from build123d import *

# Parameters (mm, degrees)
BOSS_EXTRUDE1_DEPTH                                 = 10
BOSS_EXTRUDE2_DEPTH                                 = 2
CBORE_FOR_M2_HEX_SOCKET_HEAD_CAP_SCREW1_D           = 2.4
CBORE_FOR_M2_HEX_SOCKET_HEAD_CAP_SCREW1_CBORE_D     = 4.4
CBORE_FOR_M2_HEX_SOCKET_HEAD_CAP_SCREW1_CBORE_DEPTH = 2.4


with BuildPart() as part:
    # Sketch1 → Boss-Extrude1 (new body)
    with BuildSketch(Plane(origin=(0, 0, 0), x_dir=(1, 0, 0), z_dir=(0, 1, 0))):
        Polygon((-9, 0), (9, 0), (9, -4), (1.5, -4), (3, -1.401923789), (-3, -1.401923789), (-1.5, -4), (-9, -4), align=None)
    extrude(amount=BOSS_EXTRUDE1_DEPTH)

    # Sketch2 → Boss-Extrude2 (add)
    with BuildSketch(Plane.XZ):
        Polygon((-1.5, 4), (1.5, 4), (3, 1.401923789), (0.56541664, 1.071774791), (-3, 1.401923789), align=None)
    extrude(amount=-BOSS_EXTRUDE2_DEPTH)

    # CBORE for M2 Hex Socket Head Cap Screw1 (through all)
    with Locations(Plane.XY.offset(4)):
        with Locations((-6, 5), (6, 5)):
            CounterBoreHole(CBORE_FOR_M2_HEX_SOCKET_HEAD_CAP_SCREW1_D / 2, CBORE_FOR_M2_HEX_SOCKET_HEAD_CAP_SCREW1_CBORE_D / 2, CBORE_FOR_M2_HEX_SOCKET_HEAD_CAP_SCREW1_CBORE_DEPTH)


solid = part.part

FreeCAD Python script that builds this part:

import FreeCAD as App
import Part
import Sketcher
Q = App.Units.Quantity


def add_polygon(sketch, points):
    """Adds a closed chain of lines whose ends are joined by coincident constraints."""
    first, n = sketch.GeometryCount, len(points)
    for a, b in zip(points, points[1:] + points[:1]):
        sketch.addGeometry(Part.LineSegment(App.Vector(*a, 0), App.Vector(*b, 0)), False)
    for i in range(n):
        sketch.addConstraint(Sketcher.Constraint("Coincident", first + i, 2, first + (i + 1) % n, 1))

doc = App.newDocument("Part")
body = doc.addObject("PartDesign::Body", "Body")

sketch1 = doc.addObject("Sketcher::SketchObject", "Sketch")
body.addObject(sketch1)
sketch1.AttachmentSupport = (doc.XZ_Plane, [""])
sketch1.MapMode = "FlatFace"
add_polygon(sketch1, [(9, 0), (-9, 0), (-9, 4), (-1.5, 4), (-3, 1.401924), (3, 1.401924), (1.5, 4), (9, 4)])
sketch1.addConstraint([
    Sketcher.Constraint("Horizontal", 0),
    Sketcher.Constraint("Vertical", 1),
    Sketcher.Constraint("Horizontal", 2),
    Sketcher.Constraint("Horizontal", 4),
    Sketcher.Constraint("Horizontal", 6),
    Sketcher.Constraint("Vertical", 7),
    Sketcher.Constraint("Symmetric", 0, 2, 7, 2, -1, 1),
    Sketcher.Constraint("Symmetric", 2, 2, 5, 2, -2),
    Sketcher.Constraint("Equal", 3, 5),
    Sketcher.Constraint("DistanceX", 0, 2, 0, 1, Q("18 mm")),
    Sketcher.Constraint("DistanceX", 4, 1, 4, 2, Q("6 mm")),
    Sketcher.Constraint("DistanceY", 1, 1, 1, 2, Q("4 mm")),
    Sketcher.Constraint("Angle", 3, Q("-120 deg")),
    Sketcher.Constraint("Distance", 3, Q("3 mm")),
])
pad1 = doc.addObject("PartDesign::Pad", "Pad")
body.addObject(pad1)
pad1.Profile = sketch1
pad1.Length = 10
pad1.Reversed = True

sketch2 = doc.addObject("Sketcher::SketchObject", "Sketch001")
body.addObject(sketch2)
sketch2.AttachmentSupport = (doc.XZ_Plane, [""])
sketch2.MapMode = "FlatFace"
add_polygon(sketch2, [(1.5, 4), (-1.5, 4), (-3, 1.401924), (0.565417, 1.071775), (3, 1.401924)])
sketch2.addConstraint([
    Sketcher.Constraint("Horizontal", 0),
    Sketcher.Constraint("Symmetric", 1, 2, 3, 2, -2),
    Sketcher.Constraint("Equal", 1, 4),
    Sketcher.Constraint("DistanceX", 0, 2, 0, 1, Q("3 mm")),
    Sketcher.Constraint("Angle", 1, Q("-120 deg")),
    Sketcher.Constraint("Distance", 1, Q("3 mm")),
    Sketcher.Constraint("DistanceY", -1, 1, 0, 2, Q("4 mm")),
    Sketcher.Constraint("Distance", 2, Q("3.58067 mm")),
    Sketcher.Constraint("DistanceY", 2, 2, 1, 2, Q("0.330149 mm")),
])
pad2 = doc.addObject("PartDesign::Pad", "Pad001")
body.addObject(pad2)
pad2.Profile = sketch2
pad2.Length = 2
pad2.Reversed = True

sketch3 = doc.addObject("Sketcher::SketchObject", "Sketch002")
body.addObject(sketch3)
sketch3.AttachmentSupport = (doc.XY_Plane, [""])
sketch3.MapMode = "FlatFace"
sketch3.AttachmentOffset = App.Placement(App.Vector(0, 0, 4), App.Rotation())
sketch3.addGeometry([
    Part.Circle(App.Vector(-6, 5, 0), App.Vector(0, 0, 1), 1.2),
    Part.Circle(App.Vector(6, 5, 0), App.Vector(0, 0, 1), 1.2),
], False)
sketch3.addConstraint([
    Sketcher.Constraint("Equal", 0, 1),
    Sketcher.Constraint("Symmetric", 0, 3, 1, 3, -2),
    Sketcher.Constraint("Diameter", 0, Q("2.4 mm")),
    Sketcher.Constraint("DistanceX", 0, 3, -1, 1, Q("6 mm")),
    Sketcher.Constraint("DistanceY", -1, 1, 0, 3, Q("5 mm")),
])
doc.recompute()
hole = doc.addObject("PartDesign::Hole", "Hole")
body.addObject(hole)
hole.Profile = sketch3
hole.ThreadType = "None"
hole.Diameter = 2.4
hole.DepthType = "ThroughAll"
hole.HoleCutType = "Counterbore"
hole.HoleCutDiameter = 4.4
hole.HoleCutDepth = 2.4

doc.recompute()
